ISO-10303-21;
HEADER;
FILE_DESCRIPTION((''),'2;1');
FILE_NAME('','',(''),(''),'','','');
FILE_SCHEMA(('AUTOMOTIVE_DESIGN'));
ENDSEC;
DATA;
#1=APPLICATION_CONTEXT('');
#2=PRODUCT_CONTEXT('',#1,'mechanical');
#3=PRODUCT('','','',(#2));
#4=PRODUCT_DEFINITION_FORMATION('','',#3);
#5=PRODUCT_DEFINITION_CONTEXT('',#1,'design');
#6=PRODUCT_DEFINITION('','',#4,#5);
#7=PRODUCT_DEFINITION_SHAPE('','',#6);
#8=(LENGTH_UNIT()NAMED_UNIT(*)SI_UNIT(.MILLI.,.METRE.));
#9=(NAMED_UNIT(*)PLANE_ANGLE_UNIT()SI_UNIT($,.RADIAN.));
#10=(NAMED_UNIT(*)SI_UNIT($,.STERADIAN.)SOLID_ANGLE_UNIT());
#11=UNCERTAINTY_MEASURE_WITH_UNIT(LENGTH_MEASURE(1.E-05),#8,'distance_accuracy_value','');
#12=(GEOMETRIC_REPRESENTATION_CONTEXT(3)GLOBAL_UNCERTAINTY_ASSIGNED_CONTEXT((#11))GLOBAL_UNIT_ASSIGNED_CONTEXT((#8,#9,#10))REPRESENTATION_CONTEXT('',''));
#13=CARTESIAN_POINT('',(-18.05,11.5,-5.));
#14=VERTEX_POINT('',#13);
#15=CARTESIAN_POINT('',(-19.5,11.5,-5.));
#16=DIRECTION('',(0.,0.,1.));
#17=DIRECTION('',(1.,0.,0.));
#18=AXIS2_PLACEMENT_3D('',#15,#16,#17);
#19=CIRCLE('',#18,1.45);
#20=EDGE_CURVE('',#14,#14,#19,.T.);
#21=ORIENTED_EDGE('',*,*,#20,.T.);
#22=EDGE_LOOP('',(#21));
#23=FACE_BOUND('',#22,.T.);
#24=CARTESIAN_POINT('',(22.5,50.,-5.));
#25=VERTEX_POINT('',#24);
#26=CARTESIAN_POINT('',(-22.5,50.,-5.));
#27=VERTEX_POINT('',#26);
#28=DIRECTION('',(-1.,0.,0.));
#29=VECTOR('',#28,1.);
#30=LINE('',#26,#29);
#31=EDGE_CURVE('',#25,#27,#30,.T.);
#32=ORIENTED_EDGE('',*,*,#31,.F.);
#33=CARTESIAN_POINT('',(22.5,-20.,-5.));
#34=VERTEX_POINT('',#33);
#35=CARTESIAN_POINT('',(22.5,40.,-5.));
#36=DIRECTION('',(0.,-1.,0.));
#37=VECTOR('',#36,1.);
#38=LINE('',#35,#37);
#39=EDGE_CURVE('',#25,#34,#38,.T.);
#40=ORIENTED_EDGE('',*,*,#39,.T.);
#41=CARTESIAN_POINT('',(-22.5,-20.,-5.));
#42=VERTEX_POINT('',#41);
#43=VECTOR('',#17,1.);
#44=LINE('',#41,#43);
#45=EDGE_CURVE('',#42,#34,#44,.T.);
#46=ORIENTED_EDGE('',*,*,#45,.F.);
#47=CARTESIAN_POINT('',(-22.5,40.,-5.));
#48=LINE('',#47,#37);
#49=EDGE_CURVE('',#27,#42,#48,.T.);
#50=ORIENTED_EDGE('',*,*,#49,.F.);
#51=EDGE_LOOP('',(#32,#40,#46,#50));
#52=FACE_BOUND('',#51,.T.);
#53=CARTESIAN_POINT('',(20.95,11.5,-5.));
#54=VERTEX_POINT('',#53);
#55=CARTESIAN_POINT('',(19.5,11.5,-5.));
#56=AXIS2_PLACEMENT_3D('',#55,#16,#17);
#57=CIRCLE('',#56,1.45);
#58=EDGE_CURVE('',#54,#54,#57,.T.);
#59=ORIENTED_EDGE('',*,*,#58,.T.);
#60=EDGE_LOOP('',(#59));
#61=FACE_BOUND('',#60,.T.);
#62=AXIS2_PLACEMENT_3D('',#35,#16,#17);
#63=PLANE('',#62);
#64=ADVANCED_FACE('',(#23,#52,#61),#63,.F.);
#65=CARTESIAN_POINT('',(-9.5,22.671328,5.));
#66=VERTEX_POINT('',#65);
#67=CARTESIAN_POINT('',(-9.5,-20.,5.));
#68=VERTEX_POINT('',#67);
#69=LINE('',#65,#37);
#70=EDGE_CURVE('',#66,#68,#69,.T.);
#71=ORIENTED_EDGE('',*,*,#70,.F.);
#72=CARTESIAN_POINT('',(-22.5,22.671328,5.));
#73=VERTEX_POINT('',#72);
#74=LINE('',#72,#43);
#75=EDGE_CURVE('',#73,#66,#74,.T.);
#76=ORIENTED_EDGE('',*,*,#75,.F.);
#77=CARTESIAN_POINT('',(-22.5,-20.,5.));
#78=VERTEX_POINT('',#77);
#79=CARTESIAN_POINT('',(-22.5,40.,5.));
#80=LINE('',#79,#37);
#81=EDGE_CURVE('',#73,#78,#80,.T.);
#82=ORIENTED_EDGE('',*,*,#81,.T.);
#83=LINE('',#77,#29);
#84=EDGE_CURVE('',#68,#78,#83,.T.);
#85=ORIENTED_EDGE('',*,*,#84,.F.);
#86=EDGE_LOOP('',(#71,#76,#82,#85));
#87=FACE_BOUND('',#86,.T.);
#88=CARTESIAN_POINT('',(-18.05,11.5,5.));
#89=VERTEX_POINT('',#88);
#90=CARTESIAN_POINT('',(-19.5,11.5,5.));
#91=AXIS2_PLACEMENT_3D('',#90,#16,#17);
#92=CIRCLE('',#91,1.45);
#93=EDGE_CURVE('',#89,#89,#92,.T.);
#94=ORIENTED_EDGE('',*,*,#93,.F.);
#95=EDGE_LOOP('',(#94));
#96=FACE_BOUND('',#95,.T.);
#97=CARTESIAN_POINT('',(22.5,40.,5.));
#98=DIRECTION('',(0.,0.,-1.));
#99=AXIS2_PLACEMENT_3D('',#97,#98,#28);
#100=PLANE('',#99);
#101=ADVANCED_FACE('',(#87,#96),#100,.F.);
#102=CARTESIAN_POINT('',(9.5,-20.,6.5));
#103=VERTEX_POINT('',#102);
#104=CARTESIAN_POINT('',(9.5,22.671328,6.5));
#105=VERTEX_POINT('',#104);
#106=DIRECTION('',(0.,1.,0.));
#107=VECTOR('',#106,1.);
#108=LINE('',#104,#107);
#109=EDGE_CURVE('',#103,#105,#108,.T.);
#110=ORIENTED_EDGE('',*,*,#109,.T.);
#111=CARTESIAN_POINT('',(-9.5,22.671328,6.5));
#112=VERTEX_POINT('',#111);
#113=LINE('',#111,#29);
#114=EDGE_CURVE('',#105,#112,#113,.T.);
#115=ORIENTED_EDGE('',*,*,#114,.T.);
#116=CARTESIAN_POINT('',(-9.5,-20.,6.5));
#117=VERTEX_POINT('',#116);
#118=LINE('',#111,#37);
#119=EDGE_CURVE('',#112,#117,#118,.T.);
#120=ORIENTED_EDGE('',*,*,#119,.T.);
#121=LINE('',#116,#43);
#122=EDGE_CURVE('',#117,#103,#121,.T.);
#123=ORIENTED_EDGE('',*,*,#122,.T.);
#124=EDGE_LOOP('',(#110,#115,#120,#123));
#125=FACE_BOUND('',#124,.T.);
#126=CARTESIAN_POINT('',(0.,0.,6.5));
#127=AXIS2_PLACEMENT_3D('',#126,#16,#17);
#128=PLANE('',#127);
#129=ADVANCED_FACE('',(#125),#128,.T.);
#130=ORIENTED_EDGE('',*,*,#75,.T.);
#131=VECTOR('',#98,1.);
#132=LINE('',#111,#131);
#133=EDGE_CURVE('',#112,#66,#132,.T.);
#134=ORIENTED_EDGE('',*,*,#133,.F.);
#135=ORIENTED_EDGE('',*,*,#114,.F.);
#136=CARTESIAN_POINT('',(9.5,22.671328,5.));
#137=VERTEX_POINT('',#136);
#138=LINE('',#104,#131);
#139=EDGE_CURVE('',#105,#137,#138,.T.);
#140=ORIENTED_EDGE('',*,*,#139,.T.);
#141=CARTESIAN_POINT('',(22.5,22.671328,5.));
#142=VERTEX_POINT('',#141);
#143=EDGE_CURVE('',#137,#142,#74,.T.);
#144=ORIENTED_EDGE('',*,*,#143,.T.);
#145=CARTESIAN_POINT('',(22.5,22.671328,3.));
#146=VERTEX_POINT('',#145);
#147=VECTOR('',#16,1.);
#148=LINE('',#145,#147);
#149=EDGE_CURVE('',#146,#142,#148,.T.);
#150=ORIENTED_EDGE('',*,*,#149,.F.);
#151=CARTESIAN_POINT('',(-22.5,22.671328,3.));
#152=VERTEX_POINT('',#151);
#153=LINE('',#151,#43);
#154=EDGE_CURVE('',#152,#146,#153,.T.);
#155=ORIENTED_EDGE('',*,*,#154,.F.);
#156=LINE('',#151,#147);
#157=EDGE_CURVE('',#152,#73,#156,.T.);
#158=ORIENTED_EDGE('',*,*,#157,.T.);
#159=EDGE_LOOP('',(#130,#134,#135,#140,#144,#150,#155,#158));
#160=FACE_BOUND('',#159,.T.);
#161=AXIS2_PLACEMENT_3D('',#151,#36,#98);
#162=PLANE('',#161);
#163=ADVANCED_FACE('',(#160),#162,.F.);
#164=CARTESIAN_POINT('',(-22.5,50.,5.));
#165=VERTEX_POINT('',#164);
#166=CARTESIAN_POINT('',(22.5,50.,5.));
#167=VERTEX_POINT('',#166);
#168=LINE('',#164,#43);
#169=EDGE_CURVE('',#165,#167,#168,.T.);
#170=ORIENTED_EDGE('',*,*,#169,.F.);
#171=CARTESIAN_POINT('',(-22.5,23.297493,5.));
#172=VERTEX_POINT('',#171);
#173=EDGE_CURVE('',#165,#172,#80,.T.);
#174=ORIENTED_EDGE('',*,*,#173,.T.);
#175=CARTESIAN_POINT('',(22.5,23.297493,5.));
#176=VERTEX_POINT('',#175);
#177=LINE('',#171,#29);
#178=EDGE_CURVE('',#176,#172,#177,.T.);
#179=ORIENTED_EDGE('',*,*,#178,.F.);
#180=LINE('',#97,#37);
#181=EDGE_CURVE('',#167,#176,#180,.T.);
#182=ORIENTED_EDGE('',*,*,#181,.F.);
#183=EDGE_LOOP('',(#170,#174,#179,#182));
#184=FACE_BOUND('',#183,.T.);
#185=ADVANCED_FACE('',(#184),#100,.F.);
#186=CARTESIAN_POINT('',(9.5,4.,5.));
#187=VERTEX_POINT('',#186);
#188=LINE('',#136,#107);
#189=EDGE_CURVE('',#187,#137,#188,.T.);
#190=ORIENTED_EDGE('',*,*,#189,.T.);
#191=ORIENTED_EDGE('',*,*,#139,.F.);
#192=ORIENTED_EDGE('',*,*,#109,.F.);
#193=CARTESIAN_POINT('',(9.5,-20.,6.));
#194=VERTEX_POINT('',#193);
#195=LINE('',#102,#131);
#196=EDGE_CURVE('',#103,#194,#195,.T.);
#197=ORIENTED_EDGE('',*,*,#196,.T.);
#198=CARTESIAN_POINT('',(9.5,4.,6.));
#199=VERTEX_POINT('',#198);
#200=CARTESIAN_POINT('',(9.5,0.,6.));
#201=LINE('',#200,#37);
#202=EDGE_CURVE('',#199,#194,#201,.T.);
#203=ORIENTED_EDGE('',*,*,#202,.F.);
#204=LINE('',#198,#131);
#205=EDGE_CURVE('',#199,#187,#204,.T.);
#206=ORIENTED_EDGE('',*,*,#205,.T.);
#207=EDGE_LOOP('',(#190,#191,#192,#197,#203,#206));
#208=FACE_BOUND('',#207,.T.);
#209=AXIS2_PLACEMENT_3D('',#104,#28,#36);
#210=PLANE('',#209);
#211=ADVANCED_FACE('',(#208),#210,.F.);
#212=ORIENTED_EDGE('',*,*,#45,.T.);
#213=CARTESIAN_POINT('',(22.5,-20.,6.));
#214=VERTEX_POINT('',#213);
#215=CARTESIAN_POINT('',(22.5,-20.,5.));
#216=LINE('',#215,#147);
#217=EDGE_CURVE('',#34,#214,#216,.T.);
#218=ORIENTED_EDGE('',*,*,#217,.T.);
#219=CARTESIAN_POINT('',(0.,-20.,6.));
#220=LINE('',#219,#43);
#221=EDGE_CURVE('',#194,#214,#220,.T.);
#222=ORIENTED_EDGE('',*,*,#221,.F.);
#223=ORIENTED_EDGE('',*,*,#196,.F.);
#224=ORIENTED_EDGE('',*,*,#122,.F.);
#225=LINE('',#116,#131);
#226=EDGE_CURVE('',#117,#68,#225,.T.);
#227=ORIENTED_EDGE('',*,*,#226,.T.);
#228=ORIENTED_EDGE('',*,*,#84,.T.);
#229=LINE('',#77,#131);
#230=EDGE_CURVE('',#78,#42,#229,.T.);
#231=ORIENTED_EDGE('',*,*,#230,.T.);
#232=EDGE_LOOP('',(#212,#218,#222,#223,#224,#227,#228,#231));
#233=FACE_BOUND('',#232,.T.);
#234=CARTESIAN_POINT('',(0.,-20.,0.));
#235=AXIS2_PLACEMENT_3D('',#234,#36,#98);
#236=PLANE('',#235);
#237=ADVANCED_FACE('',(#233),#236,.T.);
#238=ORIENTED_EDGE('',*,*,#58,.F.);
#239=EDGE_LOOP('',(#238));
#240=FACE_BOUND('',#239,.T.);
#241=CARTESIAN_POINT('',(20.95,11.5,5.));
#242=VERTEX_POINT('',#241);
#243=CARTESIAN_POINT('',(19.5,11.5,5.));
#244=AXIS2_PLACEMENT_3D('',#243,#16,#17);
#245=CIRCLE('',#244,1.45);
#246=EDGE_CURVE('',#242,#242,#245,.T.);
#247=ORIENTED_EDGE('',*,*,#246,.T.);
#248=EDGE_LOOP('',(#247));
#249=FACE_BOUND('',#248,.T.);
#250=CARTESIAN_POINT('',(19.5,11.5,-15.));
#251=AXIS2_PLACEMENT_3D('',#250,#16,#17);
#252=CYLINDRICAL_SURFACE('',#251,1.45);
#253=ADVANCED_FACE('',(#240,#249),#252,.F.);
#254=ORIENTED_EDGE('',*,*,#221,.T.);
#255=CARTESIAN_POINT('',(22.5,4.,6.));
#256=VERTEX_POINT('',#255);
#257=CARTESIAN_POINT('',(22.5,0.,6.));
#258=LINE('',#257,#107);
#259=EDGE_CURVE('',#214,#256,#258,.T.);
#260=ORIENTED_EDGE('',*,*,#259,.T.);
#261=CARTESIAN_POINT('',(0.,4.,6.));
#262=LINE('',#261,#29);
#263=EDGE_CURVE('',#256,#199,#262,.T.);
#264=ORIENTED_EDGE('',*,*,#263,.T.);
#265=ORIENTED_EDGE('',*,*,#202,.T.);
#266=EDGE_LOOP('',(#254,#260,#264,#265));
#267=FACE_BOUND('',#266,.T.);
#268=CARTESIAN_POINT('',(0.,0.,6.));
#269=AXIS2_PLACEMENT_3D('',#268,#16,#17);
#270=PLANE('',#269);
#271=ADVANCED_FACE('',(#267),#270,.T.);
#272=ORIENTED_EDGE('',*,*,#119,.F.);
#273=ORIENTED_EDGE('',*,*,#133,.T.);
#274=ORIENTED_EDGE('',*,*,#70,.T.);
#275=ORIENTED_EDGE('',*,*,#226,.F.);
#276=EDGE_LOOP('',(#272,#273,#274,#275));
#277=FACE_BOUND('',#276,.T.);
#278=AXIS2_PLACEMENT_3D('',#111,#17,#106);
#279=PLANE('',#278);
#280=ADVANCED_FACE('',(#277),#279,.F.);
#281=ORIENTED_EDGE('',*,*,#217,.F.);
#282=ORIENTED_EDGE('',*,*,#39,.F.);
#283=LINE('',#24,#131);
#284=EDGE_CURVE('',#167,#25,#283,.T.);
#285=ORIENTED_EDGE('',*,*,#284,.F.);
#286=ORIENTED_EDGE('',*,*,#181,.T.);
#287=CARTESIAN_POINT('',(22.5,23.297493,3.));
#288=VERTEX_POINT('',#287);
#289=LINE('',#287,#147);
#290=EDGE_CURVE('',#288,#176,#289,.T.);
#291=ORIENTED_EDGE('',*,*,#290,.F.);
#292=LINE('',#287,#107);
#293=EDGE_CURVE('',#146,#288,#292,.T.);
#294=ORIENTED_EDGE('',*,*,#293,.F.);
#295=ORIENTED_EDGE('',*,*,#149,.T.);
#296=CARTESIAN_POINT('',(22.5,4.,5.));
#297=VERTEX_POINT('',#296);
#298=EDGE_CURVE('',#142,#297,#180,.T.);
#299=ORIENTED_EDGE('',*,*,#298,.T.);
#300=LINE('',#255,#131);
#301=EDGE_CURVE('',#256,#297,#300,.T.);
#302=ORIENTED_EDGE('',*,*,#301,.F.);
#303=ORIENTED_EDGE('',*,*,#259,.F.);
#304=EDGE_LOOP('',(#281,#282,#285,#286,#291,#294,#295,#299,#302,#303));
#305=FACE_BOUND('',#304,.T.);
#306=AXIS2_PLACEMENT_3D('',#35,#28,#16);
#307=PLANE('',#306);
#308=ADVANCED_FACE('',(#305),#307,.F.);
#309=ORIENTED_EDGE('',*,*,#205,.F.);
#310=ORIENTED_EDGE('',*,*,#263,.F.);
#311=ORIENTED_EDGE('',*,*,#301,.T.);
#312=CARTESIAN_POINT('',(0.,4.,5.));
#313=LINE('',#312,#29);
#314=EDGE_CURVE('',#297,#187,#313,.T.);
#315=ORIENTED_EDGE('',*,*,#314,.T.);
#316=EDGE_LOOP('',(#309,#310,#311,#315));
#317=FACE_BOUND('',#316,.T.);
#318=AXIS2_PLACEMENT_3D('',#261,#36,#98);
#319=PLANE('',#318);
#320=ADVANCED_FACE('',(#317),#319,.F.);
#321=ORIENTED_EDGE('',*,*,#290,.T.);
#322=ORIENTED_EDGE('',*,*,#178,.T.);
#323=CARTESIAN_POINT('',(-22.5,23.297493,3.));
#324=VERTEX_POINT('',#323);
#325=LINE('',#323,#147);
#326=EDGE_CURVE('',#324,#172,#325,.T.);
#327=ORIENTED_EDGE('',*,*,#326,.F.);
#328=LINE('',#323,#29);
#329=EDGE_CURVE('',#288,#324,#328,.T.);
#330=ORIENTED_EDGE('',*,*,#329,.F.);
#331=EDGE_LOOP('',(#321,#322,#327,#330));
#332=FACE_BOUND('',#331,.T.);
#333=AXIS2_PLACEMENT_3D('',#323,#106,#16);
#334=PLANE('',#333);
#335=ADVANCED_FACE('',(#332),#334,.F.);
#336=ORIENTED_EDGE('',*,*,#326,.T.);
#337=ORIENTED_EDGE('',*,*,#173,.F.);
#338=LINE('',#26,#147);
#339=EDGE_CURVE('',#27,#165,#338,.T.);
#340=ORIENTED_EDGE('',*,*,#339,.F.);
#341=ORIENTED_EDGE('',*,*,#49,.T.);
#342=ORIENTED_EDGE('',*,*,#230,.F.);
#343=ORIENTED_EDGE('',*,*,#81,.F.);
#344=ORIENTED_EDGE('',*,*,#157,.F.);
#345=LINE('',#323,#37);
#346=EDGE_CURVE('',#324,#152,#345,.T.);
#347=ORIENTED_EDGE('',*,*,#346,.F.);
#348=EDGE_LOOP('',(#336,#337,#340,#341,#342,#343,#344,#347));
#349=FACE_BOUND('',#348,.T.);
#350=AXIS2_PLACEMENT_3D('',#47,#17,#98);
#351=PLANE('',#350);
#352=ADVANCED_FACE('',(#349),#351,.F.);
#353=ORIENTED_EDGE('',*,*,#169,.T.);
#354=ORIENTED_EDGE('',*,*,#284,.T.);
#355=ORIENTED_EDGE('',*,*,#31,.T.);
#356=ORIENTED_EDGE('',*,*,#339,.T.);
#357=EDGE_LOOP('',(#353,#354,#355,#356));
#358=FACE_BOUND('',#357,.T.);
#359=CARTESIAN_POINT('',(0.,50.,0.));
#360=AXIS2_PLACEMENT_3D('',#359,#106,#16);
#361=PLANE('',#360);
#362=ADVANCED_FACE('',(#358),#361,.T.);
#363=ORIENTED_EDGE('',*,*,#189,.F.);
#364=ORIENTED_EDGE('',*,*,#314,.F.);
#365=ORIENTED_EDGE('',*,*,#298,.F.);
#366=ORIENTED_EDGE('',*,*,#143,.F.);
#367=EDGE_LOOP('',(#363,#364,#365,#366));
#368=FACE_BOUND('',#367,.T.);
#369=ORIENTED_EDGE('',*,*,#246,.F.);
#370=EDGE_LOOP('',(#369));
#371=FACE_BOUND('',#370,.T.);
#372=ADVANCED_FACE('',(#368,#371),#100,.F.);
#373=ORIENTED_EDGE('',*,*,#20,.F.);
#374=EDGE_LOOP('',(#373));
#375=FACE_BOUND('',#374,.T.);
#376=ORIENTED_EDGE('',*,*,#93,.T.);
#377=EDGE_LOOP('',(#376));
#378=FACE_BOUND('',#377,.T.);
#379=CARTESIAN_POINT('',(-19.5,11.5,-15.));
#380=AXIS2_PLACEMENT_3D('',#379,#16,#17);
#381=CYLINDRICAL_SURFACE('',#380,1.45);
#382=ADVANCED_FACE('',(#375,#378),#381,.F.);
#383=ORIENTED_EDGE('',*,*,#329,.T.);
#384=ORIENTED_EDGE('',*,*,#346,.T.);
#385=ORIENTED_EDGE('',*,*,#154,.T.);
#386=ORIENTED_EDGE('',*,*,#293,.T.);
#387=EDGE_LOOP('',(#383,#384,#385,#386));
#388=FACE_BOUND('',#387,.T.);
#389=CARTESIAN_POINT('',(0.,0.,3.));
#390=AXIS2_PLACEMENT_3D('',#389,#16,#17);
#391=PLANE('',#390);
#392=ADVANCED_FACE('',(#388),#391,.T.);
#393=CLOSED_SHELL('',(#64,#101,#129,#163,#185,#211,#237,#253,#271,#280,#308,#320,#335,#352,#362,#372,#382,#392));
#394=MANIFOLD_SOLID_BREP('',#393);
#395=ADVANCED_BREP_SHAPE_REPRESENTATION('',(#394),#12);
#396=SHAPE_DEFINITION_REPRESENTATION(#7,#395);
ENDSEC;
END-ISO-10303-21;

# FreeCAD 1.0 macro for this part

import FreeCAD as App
import Part
import Sketcher

V = App.Vector


def add_polygon(sketch, points):
    """Adds a closed chain of lines whose ends are joined by coincident constraints."""
    first, n = sketch.GeometryCount, len(points)
    for a, b in zip(points, points[1:] + points[:1]):
        sketch.addGeometry(Part.LineSegment(App.Vector(*a, 0), App.Vector(*b, 0)), False)
    for i in range(n):
        sketch.addConstraint(Sketcher.Constraint("Coincident", first + i, 2, first + (i + 1) % n, 1))

doc = App.newDocument("Part")
body = doc.addObject("PartDesign::Body", "Body")

sketch1 = doc.addObject("Sketcher::SketchObject", "Sketch")
body.addObject(sketch1)
sketch1.AttachmentSupport = (doc.XZ_Plane, [""])
sketch1.MapMode = "FlatFace"
add_polygon(sketch1, [(-22, -5), (-22, 5), (22, 5), (22, -5)])
sketch1.addConstraint([
    Sketcher.Constraint("Vertical", 0),
    Sketcher.Constraint("Horizontal", 1),
    Sketcher.Constraint("Vertical", 2),
    Sketcher.Constraint("Horizontal", 3),
    Sketcher.Constraint("Symmetric", 0, 2, 2, 2, -1, 1),
    Sketcher.Constraint("DistanceX", 1, 1, 1, 2, 45.0),
    Sketcher.Constraint("DistanceY", 0, 1, 0, 2, 10.0),
])
pad1 = doc.addObject("PartDesign::Pad", "Pad")
body.addObject(pad1)
pad1.Profile = sketch1
pad1.Length = 40
pad1.Reversed = True

sketch2 = doc.addObject("Sketcher::SketchObject", "Sketch001")
body.addObject(sketch2)
sketch2.AttachmentSupport = (doc.XZ_Plane, [""])
sketch2.MapMode = "FlatFace"
sketch2.AttachmentOffset = App.Placement(V(0, 0, -40), App.Rotation())
add_polygon(sketch2, [(-22, -5), (-22, 5), (22, 5), (22, -5)])
sketch2.addConstraint([
    Sketcher.Constraint("Vertical", 0),
    Sketcher.Constraint("Horizontal", 1),
    Sketcher.Constraint("Vertical", 2),
    Sketcher.Constraint("Horizontal", 3),
    Sketcher.Constraint("Symmetric", 0, 2, 2, 2, -1, 1),
    Sketcher.Constraint("DistanceX", 1, 1, 1, 2, 45.0),
    Sketcher.Constraint("DistanceY", 0, 1, 0, 2, 10.0),
])
pad2 = doc.addObject("PartDesign::Pad", "Pad001")
body.addObject(pad2)
pad2.Profile = sketch2
pad2.Length = 10
pad2.Reversed = True

sketch3 = doc.addObject("Sketcher::SketchObject", "Sketch002")
body.addObject(sketch3)
sketch3.AttachmentSupport = (doc.XZ_Plane, [""])
sketch3.MapMode = "FlatFace"
add_polygon(sketch3, [(-22, 5), (-22, -5), (22, -5), (22, 5)])
sketch3.addConstraint([
    Sketcher.Constraint("Vertical", 0),
    Sketcher.Constraint("Horizontal", 1),
    Sketcher.Constraint("Vertical", 2),
    Sketcher.Constraint("Horizontal", 3),
    Sketcher.Constraint("Symmetric", 0, 2, 2, 2, -1, 1),
    Sketcher.Constraint("DistanceX", 1, 1, 1, 2, 45.0),
    Sketcher.Constraint("DistanceY", 0, 2, 0, 1, 10.0),
])
pad3 = doc.addObject("PartDesign::Pad", "Pad002")
body.addObject(pad3)
pad3.Profile = sketch3
pad3.Length = 20

sketch4 = doc.addObject("Sketcher::SketchObject", "Sketch003")
body.addObject(sketch4)
sketch4.AttachmentSupport = (doc.XY_Plane, [""])
sketch4.MapMode = "FlatFace"
sketch4.AttachmentOffset = App.Placement(V(0, 0, 5), App.Rotation())
sketch4.addGeometry([
    Part.Circle(V(19.5, 11.5, 0), V(0, 0, 1), 1.4),
    Part.Circle(V(-19.5, 11.5, 0), V(0, 0, 1), 1.4),
], False)
sketch4.addConstraint([
    Sketcher.Constraint("Equal", 0, 1),
    Sketcher.Constraint("Symmetric", 0, 3, 1, 3, -2),
    Sketcher.Constraint("Diameter", 0, 2.9),
    Sketcher.Constraint("DistanceX", 1, 3, 0, 3, 39.0),
    Sketcher.Constraint("DistanceY", -1, 1, 0, 3, 11.5),
])
pocket1 = doc.addObject("PartDesign::Pocket", "Pocket")
body.addObject(pocket1)
pocket1.Profile = sketch4
pocket1.Length = 20

sketch5 = doc.addObject("Sketcher::SketchObject", "Sketch004")
body.addObject(sketch5)
sketch5.AttachmentSupport = (doc.XY_Plane, [""])
sketch5.MapMode = "FlatFace"
sketch5.AttachmentOffset = App.Placement(V(0, 0, 5), App.Rotation())
add_polygon(sketch5, [(-22.5, 23.3), (-22.5, 22.7), (22.5, 22.7), (22.5, 23.3)])
sketch5.addConstraint([
    Sketcher.Constraint("Vertical", 0),
    Sketcher.Constraint("Horizontal", 1),
    Sketcher.Constraint("Vertical", 2),
    Sketcher.Constraint("Horizontal", 3),
    Sketcher.Constraint("DistanceX", 1, 1, 1, 2, 45.0),
    Sketcher.Constraint("DistanceX", 0, 2, -1, 1, 22.5),
    Sketcher.Constraint("DistanceY", 0, 2, 0, 1, 0.626165),
    Sketcher.Constraint("DistanceY", -1, 1, 0, 2, 22.671328),
])
pocket2 = doc.addObject("PartDesign::Pocket", "Pocket001")
body.addObject(pocket2)
pocket2.Profile = sketch5
pocket2.Length = 2

sketch6 = doc.addObject("Sketcher::SketchObject", "Sketch005")
body.addObject(sketch6)
sketch6.AttachmentSupport = (doc.XY_Plane, [""])
sketch6.MapMode = "FlatFace"
sketch6.AttachmentOffset = App.Placement(V(0, 0, 5), App.Rotation())
add_polygon(sketch6, [(-10, 23), (-10, -20), (10, -20), (10, 23)])
sketch6.addConstraint([
    Sketcher.Constraint("Vertical", 0),
    Sketcher.Constraint("Horizontal", 1),
    Sketcher.Constraint("Vertical", 2),
    Sketcher.Constraint("Horizontal", 3),
    Sketcher.Constraint("DistanceX", 1, 1, 1, 2, 19.0),
    Sketcher.Constraint("DistanceY", 0, 2, -1, 1, 20.0),
    Sketcher.Constraint("DistanceX", 0, 2, -1, 1, 9.5),
    Sketcher.Constraint("DistanceY", 0, 2, 0, 1, 42.671328),
])
pad4 = doc.addObject("PartDesign::Pad", "Pad003")
body.addObject(pad4)
pad4.Profile = sketch6
pad4.Length = 1.5

sketch7 = doc.addObject("Sketcher::SketchObject", "Sketch006")
body.addObject(sketch7)
sketch7.AttachmentSupport = (doc.XY_Plane, [""])
sketch7.MapMode = "FlatFace"
sketch7.AttachmentOffset = App.Placement(V(0, 0, 5), App.Rotation())
add_polygon(sketch7, [(10, 4), (10, -20), (22, -20), (22, 4)])
sketch7.addConstraint([
    Sketcher.Constraint("Vertical", 0),
    Sketcher.Constraint("Horizontal", 1),
    Sketcher.Constraint("Vertical", 2),
    Sketcher.Constraint("Horizontal", 3),
    Sketcher.Constraint("DistanceX", 1, 1, 1, 2, 13.0),
    Sketcher.Constraint("DistanceY", 0, 2, 0, 1, 24.0),
    Sketcher.Constraint("DistanceY", 0, 2, -1, 1, 20.0),
    Sketcher.Constraint("DistanceX", -1, 1, 0, 2, 9.5),
])
pad5 = doc.addObject("PartDesign::Pad", "Pad004")
body.addObject(pad5)
pad5.Profile = sketch7
pad5.Length = 1

doc.recompute()
